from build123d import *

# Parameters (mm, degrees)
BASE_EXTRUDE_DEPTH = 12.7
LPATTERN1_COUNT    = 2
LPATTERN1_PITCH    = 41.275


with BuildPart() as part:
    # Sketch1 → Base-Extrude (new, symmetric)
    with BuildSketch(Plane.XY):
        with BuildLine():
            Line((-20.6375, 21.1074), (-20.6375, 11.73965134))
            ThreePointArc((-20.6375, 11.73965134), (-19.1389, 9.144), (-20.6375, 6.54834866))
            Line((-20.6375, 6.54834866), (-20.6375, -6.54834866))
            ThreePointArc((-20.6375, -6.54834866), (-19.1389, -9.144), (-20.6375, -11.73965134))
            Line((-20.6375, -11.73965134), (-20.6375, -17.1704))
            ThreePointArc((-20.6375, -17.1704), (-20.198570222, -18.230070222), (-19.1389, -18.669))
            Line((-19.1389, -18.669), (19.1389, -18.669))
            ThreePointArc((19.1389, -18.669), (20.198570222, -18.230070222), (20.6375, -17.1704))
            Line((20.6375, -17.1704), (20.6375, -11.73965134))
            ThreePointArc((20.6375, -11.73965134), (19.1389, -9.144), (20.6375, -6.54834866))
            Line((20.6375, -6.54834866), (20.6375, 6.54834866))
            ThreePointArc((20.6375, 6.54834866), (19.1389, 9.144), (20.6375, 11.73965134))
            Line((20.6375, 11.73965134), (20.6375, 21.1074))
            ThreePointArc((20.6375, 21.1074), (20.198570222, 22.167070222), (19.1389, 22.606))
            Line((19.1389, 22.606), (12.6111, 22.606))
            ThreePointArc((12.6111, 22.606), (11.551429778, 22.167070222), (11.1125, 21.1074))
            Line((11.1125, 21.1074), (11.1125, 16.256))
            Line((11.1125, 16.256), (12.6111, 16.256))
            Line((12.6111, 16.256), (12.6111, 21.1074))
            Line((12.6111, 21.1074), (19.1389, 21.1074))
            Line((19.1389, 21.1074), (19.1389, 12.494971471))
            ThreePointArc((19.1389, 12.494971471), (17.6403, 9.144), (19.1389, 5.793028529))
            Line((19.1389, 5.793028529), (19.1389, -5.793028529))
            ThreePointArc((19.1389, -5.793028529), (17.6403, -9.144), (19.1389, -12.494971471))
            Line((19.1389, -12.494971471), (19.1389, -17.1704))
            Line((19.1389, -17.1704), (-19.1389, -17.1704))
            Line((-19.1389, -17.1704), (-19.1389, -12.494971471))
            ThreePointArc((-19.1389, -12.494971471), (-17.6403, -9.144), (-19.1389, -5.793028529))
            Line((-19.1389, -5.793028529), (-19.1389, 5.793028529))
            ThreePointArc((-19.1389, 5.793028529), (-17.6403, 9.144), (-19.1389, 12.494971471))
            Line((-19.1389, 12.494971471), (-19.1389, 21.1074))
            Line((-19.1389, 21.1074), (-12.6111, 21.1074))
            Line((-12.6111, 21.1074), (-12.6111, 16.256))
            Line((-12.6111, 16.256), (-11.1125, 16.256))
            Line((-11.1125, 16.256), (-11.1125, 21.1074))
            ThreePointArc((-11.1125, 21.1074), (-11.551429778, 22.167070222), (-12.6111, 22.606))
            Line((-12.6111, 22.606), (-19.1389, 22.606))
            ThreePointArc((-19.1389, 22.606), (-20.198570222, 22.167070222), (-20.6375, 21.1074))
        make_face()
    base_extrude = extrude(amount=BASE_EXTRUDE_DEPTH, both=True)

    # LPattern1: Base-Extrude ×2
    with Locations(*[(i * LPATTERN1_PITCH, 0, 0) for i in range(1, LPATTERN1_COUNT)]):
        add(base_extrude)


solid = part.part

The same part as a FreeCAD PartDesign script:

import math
import FreeCAD as App
import Part
import Sketcher
Q = App.Units.Quantity

doc = App.newDocument("Part")
body = doc.addObject("PartDesign::Body", "Body")

sketch1 = doc.addObject("Sketcher::SketchObject", "Sketch")
body.addObject(sketch1)
sketch1.AttachmentSupport = (doc.XY_Plane, [""])
sketch1.MapMode = "FlatFace"
sketch1.addGeometry([
    Part.LineSegment(App.Vector(-20.6, 21.1, 0), App.Vector(-20.6, 11.7, 0)),
    Part.ArcOfCircle(Part.Circle(App.Vector(-22.1, 9.1, 0), App.Vector(0, 0, 1), 3), math.radians(-60), math.radians(60)),
    Part.LineSegment(App.Vector(-20.6, 6.5, 0), App.Vector(-20.6, -6.5, 0)),
    Part.ArcOfCircle(Part.Circle(App.Vector(-22.1, -9.1, 0), App.Vector(0, 0, 1), 3), math.radians(-60), math.radians(60)),
    Part.LineSegment(App.Vector(-20.6, -11.7, 0), App.Vector(-20.6, -17.2, 0)),
    Part.ArcOfCircle(Part.Circle(App.Vector(-19.1, -17.2, 0), App.Vector(0, 0, 1), 1.5), math.radians(-180), math.radians(-90)),
    Part.LineSegment(App.Vector(-19.1, -18.7, 0), App.Vector(19.1, -18.7, 0)),
    Part.ArcOfCircle(Part.Circle(App.Vector(19.1, -17.2, 0), App.Vector(0, 0, 1), 1.5), math.radians(-90), math.radians(0)),
    Part.LineSegment(App.Vector(20.6, -17.2, 0), App.Vector(20.6, -11.7, 0)),
    Part.ArcOfCircle(Part.Circle(App.Vector(22.1, -9.1, 0), App.Vector(0, 0, 1), 3), math.radians(120), math.radians(240)),
    Part.LineSegment(App.Vector(20.6, -6.5, 0), App.Vector(20.6, 6.5, 0)),
    Part.ArcOfCircle(Part.Circle(App.Vector(22.1, 9.1, 0), App.Vector(0, 0, 1), 3), math.radians(120), math.radians(240)),
    Part.LineSegment(App.Vector(20.6, 11.7, 0), App.Vector(20.6, 21.1, 0)),
    Part.ArcOfCircle(Part.Circle(App.Vector(19.1, 21.1, 0), App.Vector(0, 0, 1), 1.5), math.radians(0), math.radians(90)),
    Part.LineSegment(App.Vector(19.1, 22.6, 0), App.Vector(12.6, 22.6, 0)),
    Part.ArcOfCircle(Part.Circle(App.Vector(12.6, 21.1, 0), App.Vector(0, 0, 1), 1.5), math.radians(90), math.radians(180)),
    Part.LineSegment(App.Vector(11.1, 21.1, 0), App.Vector(11.1, 16.3, 0)),
    Part.LineSegment(App.Vector(11.1, 16.3, 0), App.Vector(12.6, 16.3, 0)),
    Part.LineSegment(App.Vector(12.6, 16.3, 0), App.Vector(12.6, 21.1, 0)),
    Part.LineSegment(App.Vector(12.6, 21.1, 0), App.Vector(19.1, 21.1, 0)),
    Part.LineSegment(App.Vector(19.1, 21.1, 0), App.Vector(19.1, 12.5, 0)),
    Part.ArcOfCircle(Part.Circle(App.Vector(22.1, 9.1, 0), App.Vector(0, 0, 1), 4.5), math.radians(132), math.radians(228)),
    Part.LineSegment(App.Vector(19.1, 5.8, 0), App.Vector(19.1, -5.8, 0)),
    Part.ArcOfCircle(Part.Circle(App.Vector(22.1, -9.1, 0), App.Vector(0, 0, 1), 4.5), math.radians(132), math.radians(228)),
    Part.LineSegment(App.Vector(19.1, -12.5, 0), App.Vector(19.1, -17.2, 0)),
    Part.LineSegment(App.Vector(19.1, -17.2, 0), App.Vector(-19.1, -17.2, 0)),
    Part.LineSegment(App.Vector(-19.1, -17.2, 0), App.Vector(-19.1, -12.5, 0)),
    Part.ArcOfCircle(Part.Circle(App.Vector(-22.1, -9.1, 0), App.Vector(0, 0, 1), 4.5), math.radians(-48), math.radians(48)),
    Part.LineSegment(App.Vector(-19.1, -5.8, 0), App.Vector(-19.1, 5.8, 0)),
    Part.ArcOfCircle(Part.Circle(App.Vector(-22.1, 9.1, 0), App.Vector(0, 0, 1), 4.5), math.radians(-48), math.radians(48)),
    Part.LineSegment(App.Vector(-19.1, 12.5, 0), App.Vector(-19.1, 21.1, 0)),
    Part.LineSegment(App.Vector(-19.1, 21.1, 0), App.Vector(-12.6, 21.1, 0)),
    Part.LineSegment(App.Vector(-12.6, 21.1, 0), App.Vector(-12.6, 16.3, 0)),
    Part.LineSegment(App.Vector(-12.6, 16.3, 0), App.Vector(-11.1, 16.3, 0)),
    Part.LineSegment(App.Vector(-11.1, 16.3, 0), App.Vector(-11.1, 21.1, 0)),
    Part.ArcOfCircle(Part.Circle(App.Vector(-12.6, 21.1, 0), App.Vector(0, 0, 1), 1.5), math.radians(0), math.radians(90)),
    Part.LineSegment(App.Vector(-12.6, 22.6, 0), App.Vector(-19.1, 22.6, 0)),
    Part.ArcOfCircle(Part.Circle(App.Vector(-19.1, 21.1, 0), App.Vector(0, 0, 1), 1.5), math.radians(90), math.radians(180)),
], False)
sketch1.addConstraint([
    Sketcher.Constraint("Coincident", 0, 2, 1, 2),
    Sketcher.Constraint("Coincident", 1, 1, 2, 1),
    Sketcher.Constraint("Coincident", 2, 2, 3, 2),
    Sketcher.Constraint("Coincident", 3, 1, 4, 1),
    Sketcher.Constraint("Tangent", 4, 2, 5, 1),
    Sketcher.Constraint("Tangent", 5, 2, 6, 1),
    Sketcher.Constraint("Tangent", 6, 2, 7, 1),
    Sketcher.Constraint("Tangent", 7, 2, 8, 1),
    Sketcher.Constraint("Coincident", 8, 2, 9, 2),
    Sketcher.Constraint("Coincident", 9, 1, 10, 1),
    Sketcher.Constraint("Coincident", 10, 2, 11, 2),
    Sketcher.Constraint("Coincident", 11, 1, 12, 1),
    Sketcher.Constraint("Tangent", 12, 2, 13, 1),
    Sketcher.Constraint("Tangent", 13, 2, 14, 1),
    Sketcher.Constraint("Tangent", 14, 2, 15, 1),
    Sketcher.Constraint("Tangent", 15, 2, 16, 1),
    Sketcher.Constraint("Coincident", 16, 2, 17, 1),
    Sketcher.Constraint("Coincident", 17, 2, 18, 1),
    Sketcher.Constraint("Coincident", 18, 2, 19, 1),
    Sketcher.Constraint("Coincident", 19, 2, 20, 1),
    Sketcher.Constraint("Coincident", 20, 2, 21, 1),
    Sketcher.Constraint("Coincident", 21, 2, 22, 1),
    Sketcher.Constraint("Coincident", 22, 2, 23, 1),
    Sketcher.Constraint("Coincident", 23, 2, 24, 1),
    Sketcher.Constraint("Coincident", 24, 2, 25, 1),
    Sketcher.Constraint("Coincident", 25, 2, 26, 1),
    Sketcher.Constraint("Coincident", 26, 2, 27, 1),
    Sketcher.Constraint("Coincident", 27, 2, 28, 1),
    Sketcher.Constraint("Coincident", 28, 2, 29, 1),
    Sketcher.Constraint("Coincident", 29, 2, 30, 1),
    Sketcher.Constraint("Coincident", 30, 2, 31, 1),
    Sketcher.Constraint("Coincident", 31, 2, 32, 1),
    Sketcher.Constraint("Coincident", 32, 2, 33, 1),
    Sketcher.Constraint("Coincident", 33, 2, 34, 1),
    Sketcher.Constraint("Tangent", 34, 2, 35, 1),
    Sketcher.Constraint("Tangent", 35, 2, 36, 1),
    Sketcher.Constraint("Tangent", 36, 2, 37, 1),
    Sketcher.Constraint("Tangent", 37, 2, 0, 1),
    Sketcher.Constraint("Vertical", 0),
    Sketcher.Constraint("Vertical", 2),
    Sketcher.Constraint("Vertical", 4),
    Sketcher.Constraint("Horizontal", 6),
    Sketcher.Constraint("Vertical", 8),
    Sketcher.Constraint("Vertical", 10),
    Sketcher.Constraint("Vertical", 12),
    Sketcher.Constraint("Horizontal", 14),
    Sketcher.Constraint("Vertical", 16),
    Sketcher.Constraint("Horizontal", 17),
    Sketcher.Constraint("Vertical", 18),
    Sketcher.Constraint("Horizontal", 19),
    Sketcher.Constraint("Vertical", 20),
    Sketcher.Constraint("Vertical", 22),
    Sketcher.Constraint("Vertical", 24),
    Sketcher.Constraint("Horizontal", 25),
    Sketcher.Constraint("Vertical", 26),
    Sketcher.Constraint("Vertical", 28),
    Sketcher.Constraint("Vertical", 30),
    Sketcher.Constraint("Horizontal", 31),
    Sketcher.Constraint("Vertical", 32),
    Sketcher.Constraint("Horizontal", 33),
    Sketcher.Constraint("Vertical", 34),
    Sketcher.Constraint("Horizontal", 36),
    Sketcher.Constraint("Coincident", 21, 3, 11, 3),
    Sketcher.Constraint("Coincident", 23, 3, 9, 3),
    Sketcher.Constraint("Coincident", 27, 3, 3, 3),
    Sketcher.Constraint("Coincident", 29, 3, 1, 3),
    Sketcher.Constraint("Coincident", 18, 2, 15, 3),
    Sketcher.Constraint("Coincident", 19, 2, 13, 3),
    Sketcher.Constraint("Coincident", 24, 2, 7, 3),
    Sketcher.Constraint("Coincident", 25, 2, 5, 3),
    Sketcher.Constraint("Coincident", 30, 2, 37, 3),
    Sketcher.Constraint("Coincident", 31, 2, 35, 3),
    Sketcher.Constraint("Equal", 1, 3),
    Sketcher.Constraint("Equal", 3, 9),
    Sketcher.Constraint("Equal", 9, 11),
    Sketcher.Constraint("Equal", 7, 13),
    Sketcher.Constraint("Equal", 21, 23),
    Sketcher.Constraint("Equal", 23, 27),
    Sketcher.Constraint("Equal", 27, 29),
    Sketcher.Constraint("Equal", 15, 35),
    Sketcher.Constraint("Symmetric", 1, 3, 9, 3, -1, 1),
    Sketcher.Constraint("Symmetric", 3, 3, 11, 3, -1, 1),
    Sketcher.Constraint("Symmetric", 3, 3, 9, 3, -2),
    Sketcher.Constraint("Symmetric", 15, 3, 35, 3, -2),
    Sketcher.Constraint("Horizontal", 3, 1, 8, 2),
    Sketcher.Constraint("Horizontal", 2, 2, 9, 1),
    Sketcher.Constraint("Horizontal", 0, 2, 11, 1),
    Sketcher.Constraint("Horizontal", 22, 2, 27, 2),
    Sketcher.Constraint("Horizontal", 17, 2, 32, 2),
    Sketcher.Constraint("Vertical", 7, 3, 13, 3),
    Sketcher.Constraint("Vertical", 0, 2, 1, 1),
    Sketcher.Constraint("Vertical", 20, 2, 21, 2),
    Sketcher.Constraint("Radius", 1, Q("0.118 in")),
    Sketcher.Constraint("Radius", 5, Q("0.059 in")),
    Sketcher.Constraint("Radius", 21, Q("0.177 in")),
    Sketcher.Constraint("DistanceX", 6, 1, 6, 2, Q("1.507 in")),
    Sketcher.Constraint("DistanceX", 14, 2, 14, 1, Q("0.257 in")),
    Sketcher.Constraint("DistanceY", 16, 2, 16, 1, Q("0.191 in")),
    Sketcher.Constraint("DistanceY", -1, 1, 1, 3, Q("0.36 in")),
    Sketcher.Constraint("DistanceY", -1, 1, 13, 2, Q("0.89 in")),
    Sketcher.Constraint("DistanceY", 5, 3, -1, 1, Q("0.676 in")),
    Sketcher.Constraint("DistanceX", 3, 3, 5, 3, Q("0.118 in")),
])
pad1 = doc.addObject("PartDesign::Pad", "Pad")
body.addObject(pad1)
pad1.Profile = sketch1
pad1.Length = Q("1 in")
pad1.Midplane = True
doc.recompute()

linearpattern = doc.addObject("PartDesign::LinearPattern", "LinearPattern")
body.addObject(linearpattern)
linearpattern.Originals = [pad1]
linearpattern.Direction = (doc.X_Axis, [""])
linearpattern.Mode = "offset"
linearpattern.Offset = Q("1.625 in")
linearpattern.Occurrences = 2
body.Tip = linearpattern

doc.recompute()
